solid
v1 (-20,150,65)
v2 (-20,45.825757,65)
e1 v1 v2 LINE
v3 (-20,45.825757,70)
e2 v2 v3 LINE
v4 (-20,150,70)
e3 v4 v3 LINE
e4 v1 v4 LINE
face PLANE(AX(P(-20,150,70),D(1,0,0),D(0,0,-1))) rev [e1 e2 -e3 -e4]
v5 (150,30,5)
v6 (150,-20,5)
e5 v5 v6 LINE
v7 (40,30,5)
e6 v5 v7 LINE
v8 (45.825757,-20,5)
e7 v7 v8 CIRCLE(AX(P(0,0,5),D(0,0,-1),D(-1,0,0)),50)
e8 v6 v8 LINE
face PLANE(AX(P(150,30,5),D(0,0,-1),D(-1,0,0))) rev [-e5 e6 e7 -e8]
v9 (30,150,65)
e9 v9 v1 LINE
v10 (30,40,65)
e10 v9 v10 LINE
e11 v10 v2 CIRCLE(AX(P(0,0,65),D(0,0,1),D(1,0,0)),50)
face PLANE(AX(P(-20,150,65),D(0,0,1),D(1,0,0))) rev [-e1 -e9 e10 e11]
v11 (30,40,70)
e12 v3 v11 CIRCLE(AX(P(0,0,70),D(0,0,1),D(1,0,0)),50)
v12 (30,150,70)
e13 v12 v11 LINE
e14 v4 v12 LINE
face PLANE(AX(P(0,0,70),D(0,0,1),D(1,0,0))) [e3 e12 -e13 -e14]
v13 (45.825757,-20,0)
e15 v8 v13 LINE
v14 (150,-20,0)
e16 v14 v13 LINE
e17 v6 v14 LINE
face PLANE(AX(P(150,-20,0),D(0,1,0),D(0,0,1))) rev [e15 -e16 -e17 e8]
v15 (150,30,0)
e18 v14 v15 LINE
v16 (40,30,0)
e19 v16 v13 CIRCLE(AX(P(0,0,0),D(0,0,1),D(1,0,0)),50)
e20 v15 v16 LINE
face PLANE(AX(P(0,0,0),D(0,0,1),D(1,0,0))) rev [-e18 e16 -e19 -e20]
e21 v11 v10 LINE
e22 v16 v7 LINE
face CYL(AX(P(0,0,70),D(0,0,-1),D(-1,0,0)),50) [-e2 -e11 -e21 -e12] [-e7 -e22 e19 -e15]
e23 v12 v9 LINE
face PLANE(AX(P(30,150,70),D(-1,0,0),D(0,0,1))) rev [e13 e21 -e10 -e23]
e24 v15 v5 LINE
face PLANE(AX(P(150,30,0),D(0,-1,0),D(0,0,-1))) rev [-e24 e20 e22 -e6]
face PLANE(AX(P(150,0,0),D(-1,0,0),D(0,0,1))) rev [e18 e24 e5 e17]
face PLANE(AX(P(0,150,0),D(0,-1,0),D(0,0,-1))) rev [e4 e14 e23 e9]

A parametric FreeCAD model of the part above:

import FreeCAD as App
import Part
import Sketcher

V = App.Vector
Q = App.Units.Quantity

doc = App.newDocument("Part")
body = doc.addObject("PartDesign::Body", "Body")

sketch1 = doc.addObject("Sketcher::SketchObject", "Sketch")
body.addObject(sketch1)
sketch1.AttachmentSupport = (doc.XY_Plane, [""])
sketch1.MapMode = "FlatFace"
sketch1.addGeometry(Part.Circle(V(0, 0, 0), V(0, 0, 1), 50), False)
sketch1.addConstraint(Sketcher.Constraint("Coincident", 0, 3, -1, 1))
sketch1.addConstraint(Sketcher.Constraint("Diameter", 0, Q("100 mm")))
pad1 = doc.addObject("PartDesign::Pad", "Pad")
body.addObject(pad1)
pad1.Profile = sketch1
pad1.Length = 70

sketch2 = doc.addObject("Sketcher::SketchObject", "Sketch001")
body.addObject(sketch2)
sketch2.AttachmentSupport = (doc.XZ_Plane, [""])
sketch2.MapMode = "FlatFace"
sketch2.addGeometry(Part.LineSegment(V(-20, 65, 0), V(-20, 70, 0)), False)
sketch2.addGeometry(Part.LineSegment(V(-20, 70, 0), V(30, 70, 0)), False)
sketch2.addGeometry(Part.LineSegment(V(30, 70, 0), V(30, 65, 0)), False)
sketch2.addGeometry(Part.LineSegment(V(30, 65, 0), V(-20, 65, 0)), False)
sketch2.addConstraint(Sketcher.Constraint("Coincident", 0, 2, 1, 1))
sketch2.addConstraint(Sketcher.Constraint("Coincident", 1, 2, 2, 1))
sketch2.addConstraint(Sketcher.Constraint("Coincident", 2, 2, 3, 1))
sketch2.addConstraint(Sketcher.Constraint("Coincident", 3, 2, 0, 1))
sketch2.addConstraint(Sketcher.Constraint("Vertical", 0))
sketch2.addConstraint(Sketcher.Constraint("Horizontal", 1))
sketch2.addConstraint(Sketcher.Constraint("Vertical", 2))
sketch2.addConstraint(Sketcher.Constraint("Horizontal", 3))
sketch2.addConstraint(Sketcher.Constraint("DistanceX", 1, 1, 1, 2, Q("50 mm")))
sketch2.addConstraint(Sketcher.Constraint("DistanceY", 0, 1, 0, 2, Q("5 mm")))
sketch2.addConstraint(Sketcher.Constraint("DistanceX", 0, 2, -1, 1, Q("20 mm")))
sketch2.addConstraint(Sketcher.Constraint("DistanceY", -1, 1, 0, 2, Q("70 mm")))
pad2 = doc.addObject("PartDesign::Pad", "Pad001")
body.addObject(pad2)
pad2.Profile = sketch2
pad2.Length = 150
pad2.Reversed = True

sketch3 = doc.addObject("Sketcher::SketchObject", "Sketch002")
body.addObject(sketch3)
sketch3.AttachmentSupport = (doc.YZ_Plane, [""])
sketch3.MapMode = "FlatFace"
sketch3.addGeometry(Part.LineSegment(V(30, 5, 0), V(-20, 5, 0)), False)
sketch3.addGeometry(Part.LineSegment(V(-20, 5, 0), V(-20, 0, 0)), False)
sketch3.addGeometry(Part.LineSegment(V(-20, 0, 0), V(30, 0, 0)), False)
sketch3.addGeometry(Part.LineSegment(V(30, 0, 0), V(30, 5, 0)), False)
sketch3.addConstraint(Sketcher.Constraint("Coincident", 0, 2, 1, 1))
sketch3.addConstraint(Sketcher.Constraint("Coincident", 1, 2, 2, 1))
sketch3.addConstraint(Sketcher.Constraint("Coincident", 2, 2, 3, 1))
sketch3.addConstraint(Sketcher.Constraint("Coincident", 3, 2, 0, 1))
sketch3.addConstraint(Sketcher.Constraint("Horizontal", 0))
sketch3.addConstraint(Sketcher.Constraint("Vertical", 1))
sketch3.addConstraint(Sketcher.Constraint("Horizontal", 2))
sketch3.addConstraint(Sketcher.Constraint("Vertical", 3))
sketch3.addConstraint(Sketcher.Constraint("PointOnObject", 1, 2, -1))
sketch3.addConstraint(Sketcher.Constraint("DistanceX", 0, 2, 0, 1, Q("50 mm")))
sketch3.addConstraint(Sketcher.Constraint("DistanceY", 1, 2, 1, 1, Q("5 mm")))
sketch3.addConstraint(Sketcher.Constraint("DistanceX", 0, 2, -1, 1, Q("20 mm")))
pad3 = doc.addObject("PartDesign::Pad", "Pad002")
body.addObject(pad3)
pad3.Profile = sketch3
pad3.Length = 150

doc.recompute()
